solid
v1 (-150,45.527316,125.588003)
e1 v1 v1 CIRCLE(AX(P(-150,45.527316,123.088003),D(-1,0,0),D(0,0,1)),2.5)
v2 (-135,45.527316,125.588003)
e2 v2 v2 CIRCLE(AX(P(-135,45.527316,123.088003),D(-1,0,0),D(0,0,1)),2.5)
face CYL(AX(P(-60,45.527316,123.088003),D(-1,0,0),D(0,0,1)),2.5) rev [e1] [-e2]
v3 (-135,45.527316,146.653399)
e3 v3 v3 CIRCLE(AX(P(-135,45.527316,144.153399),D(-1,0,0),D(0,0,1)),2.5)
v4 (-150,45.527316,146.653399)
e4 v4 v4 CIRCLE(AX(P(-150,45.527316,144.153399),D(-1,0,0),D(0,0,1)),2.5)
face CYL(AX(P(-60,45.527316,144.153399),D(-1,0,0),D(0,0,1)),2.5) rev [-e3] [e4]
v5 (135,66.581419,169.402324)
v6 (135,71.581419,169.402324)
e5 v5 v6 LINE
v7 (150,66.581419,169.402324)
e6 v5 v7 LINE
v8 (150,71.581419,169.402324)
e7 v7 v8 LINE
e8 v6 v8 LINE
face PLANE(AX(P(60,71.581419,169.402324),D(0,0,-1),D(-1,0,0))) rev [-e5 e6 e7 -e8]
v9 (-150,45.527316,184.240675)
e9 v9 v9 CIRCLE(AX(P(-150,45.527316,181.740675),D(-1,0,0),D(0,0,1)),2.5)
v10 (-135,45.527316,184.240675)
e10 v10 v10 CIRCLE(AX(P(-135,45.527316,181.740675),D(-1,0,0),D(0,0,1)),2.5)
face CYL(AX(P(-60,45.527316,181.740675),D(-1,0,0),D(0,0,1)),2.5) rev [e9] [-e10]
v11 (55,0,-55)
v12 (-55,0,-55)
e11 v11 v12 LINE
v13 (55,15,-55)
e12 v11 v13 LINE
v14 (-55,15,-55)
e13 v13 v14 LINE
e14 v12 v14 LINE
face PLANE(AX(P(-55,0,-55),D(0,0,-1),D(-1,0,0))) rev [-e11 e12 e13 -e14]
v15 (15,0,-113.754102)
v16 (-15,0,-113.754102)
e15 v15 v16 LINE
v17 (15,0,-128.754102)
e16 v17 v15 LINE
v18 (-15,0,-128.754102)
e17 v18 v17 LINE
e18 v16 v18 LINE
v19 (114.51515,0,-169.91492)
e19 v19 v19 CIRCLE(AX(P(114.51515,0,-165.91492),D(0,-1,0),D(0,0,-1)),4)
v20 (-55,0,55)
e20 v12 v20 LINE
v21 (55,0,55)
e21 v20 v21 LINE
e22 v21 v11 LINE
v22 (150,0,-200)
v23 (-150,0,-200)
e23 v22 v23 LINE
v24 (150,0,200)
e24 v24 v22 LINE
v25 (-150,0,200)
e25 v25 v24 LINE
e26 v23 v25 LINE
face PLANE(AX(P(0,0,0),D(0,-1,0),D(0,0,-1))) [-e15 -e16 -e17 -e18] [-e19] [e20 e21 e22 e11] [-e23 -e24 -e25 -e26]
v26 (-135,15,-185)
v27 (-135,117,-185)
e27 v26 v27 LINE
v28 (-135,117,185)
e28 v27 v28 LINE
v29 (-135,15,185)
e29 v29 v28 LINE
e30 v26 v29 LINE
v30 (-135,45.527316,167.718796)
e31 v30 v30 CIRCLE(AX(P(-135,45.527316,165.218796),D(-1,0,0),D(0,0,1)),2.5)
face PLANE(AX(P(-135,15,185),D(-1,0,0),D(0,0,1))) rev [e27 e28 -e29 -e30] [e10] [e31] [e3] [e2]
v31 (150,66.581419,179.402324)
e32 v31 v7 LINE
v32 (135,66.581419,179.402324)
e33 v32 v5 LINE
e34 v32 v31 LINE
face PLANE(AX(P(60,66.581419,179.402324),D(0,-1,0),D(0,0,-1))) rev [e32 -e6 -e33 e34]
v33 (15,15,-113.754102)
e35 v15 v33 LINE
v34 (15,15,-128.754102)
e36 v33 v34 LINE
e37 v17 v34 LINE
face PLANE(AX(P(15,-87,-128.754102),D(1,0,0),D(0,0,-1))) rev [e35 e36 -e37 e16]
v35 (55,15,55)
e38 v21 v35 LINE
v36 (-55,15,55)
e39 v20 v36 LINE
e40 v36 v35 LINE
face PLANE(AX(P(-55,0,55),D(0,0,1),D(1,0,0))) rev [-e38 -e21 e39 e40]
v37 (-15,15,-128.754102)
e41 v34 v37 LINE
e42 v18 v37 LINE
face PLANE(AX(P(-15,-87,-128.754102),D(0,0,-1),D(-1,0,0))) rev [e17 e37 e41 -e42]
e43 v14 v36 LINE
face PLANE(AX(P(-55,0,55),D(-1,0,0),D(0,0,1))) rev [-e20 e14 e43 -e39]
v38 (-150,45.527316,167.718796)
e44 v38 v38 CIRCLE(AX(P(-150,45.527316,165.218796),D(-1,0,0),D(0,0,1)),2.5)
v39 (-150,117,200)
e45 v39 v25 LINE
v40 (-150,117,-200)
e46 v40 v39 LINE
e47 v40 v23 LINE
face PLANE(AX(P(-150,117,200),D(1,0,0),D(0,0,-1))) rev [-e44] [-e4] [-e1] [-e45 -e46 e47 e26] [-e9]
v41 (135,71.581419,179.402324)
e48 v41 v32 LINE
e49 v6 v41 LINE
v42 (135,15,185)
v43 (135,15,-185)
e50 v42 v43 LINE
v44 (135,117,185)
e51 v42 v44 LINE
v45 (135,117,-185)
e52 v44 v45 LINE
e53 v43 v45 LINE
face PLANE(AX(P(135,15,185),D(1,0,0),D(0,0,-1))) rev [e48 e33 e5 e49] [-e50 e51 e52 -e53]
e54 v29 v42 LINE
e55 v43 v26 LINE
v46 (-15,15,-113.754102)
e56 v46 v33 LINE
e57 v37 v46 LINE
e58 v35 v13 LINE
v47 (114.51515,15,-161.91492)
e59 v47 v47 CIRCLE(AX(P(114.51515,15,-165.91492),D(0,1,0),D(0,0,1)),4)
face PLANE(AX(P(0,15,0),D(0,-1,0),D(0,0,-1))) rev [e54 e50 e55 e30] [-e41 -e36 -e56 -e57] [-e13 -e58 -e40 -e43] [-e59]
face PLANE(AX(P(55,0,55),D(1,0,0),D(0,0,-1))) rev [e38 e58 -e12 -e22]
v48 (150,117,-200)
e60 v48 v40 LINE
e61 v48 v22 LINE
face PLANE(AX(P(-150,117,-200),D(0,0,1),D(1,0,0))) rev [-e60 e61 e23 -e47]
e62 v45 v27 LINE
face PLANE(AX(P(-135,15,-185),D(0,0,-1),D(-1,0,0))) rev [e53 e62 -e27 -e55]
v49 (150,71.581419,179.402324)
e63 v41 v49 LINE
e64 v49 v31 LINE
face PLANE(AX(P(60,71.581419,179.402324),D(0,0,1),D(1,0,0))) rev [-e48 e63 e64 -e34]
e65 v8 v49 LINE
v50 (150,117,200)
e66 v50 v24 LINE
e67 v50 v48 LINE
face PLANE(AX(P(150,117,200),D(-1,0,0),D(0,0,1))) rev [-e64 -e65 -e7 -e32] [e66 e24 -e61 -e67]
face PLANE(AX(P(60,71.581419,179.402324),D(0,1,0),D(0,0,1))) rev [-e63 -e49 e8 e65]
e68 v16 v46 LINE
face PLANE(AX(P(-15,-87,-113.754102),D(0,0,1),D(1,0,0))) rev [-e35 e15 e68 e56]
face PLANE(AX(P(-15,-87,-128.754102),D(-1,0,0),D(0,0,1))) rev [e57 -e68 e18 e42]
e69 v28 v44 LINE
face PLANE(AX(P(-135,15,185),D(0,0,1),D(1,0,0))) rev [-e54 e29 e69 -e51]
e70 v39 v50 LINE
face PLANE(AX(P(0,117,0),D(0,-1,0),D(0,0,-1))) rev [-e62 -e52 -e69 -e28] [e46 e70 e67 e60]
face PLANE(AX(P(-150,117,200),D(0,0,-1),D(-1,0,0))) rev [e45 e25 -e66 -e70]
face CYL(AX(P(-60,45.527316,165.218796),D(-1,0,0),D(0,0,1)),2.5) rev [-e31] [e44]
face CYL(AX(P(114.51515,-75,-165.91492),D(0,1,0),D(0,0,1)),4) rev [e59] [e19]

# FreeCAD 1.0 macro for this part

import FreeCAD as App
import Part
import Sketcher
from FreeCAD import Vector
Q = App.Units.Quantity

doc = App.newDocument("Part")
body = doc.addObject("PartDesign::Body", "Body")

# Sketch on XZ plane
sketch1 = body.newObject("Sketcher::SketchObject", "Sketch")
sketch1.AttachmentSupport = (doc.getObject("XZ_Plane"), [""])
sketch1.MapMode = "FlatFace"
sketch1.addGeometry([
    Part.LineSegment(Vector(-150, -200, 0), Vector(-150, 200, 0)),
    Part.LineSegment(Vector(-150, 200, 0), Vector(150, 200, 0)),
    Part.LineSegment(Vector(150, 200, 0), Vector(150, -200, 0)),
    Part.LineSegment(Vector(150, -200, 0), Vector(-150, -200, 0)),
], False)
sketch1.addConstraint([
    Sketcher.Constraint("Coincident", 0, 2, 1, 1),
    Sketcher.Constraint("Coincident", 1, 2, 2, 1),
    Sketcher.Constraint("Coincident", 2, 2, 3, 1),
    Sketcher.Constraint("Coincident", 3, 2, 0, 1),
    Sketcher.Constraint("Vertical", 0),
    Sketcher.Constraint("Horizontal", 1),
    Sketcher.Constraint("Vertical", 2),
    Sketcher.Constraint("Horizontal", 3),
    Sketcher.Constraint("Symmetric", 0, 2, 2, 2, -1, 1),
    Sketcher.Constraint("DistanceX", 1, 1, 1, 2, Q("300 mm")),
    Sketcher.Constraint("DistanceY", 0, 1, 0, 2, Q("400 mm")),
])
pad1 = body.newObject("PartDesign::Pad", "Pad")
pad1.Profile = sketch1
pad1.Length = 117
pad1.Reversed = True

# Sketch on XZ plane
sketch2 = body.newObject("Sketcher::SketchObject", "Sketch001")
sketch2.AttachmentSupport = (doc.getObject("XZ_Plane"), [""])
sketch2.MapMode = "FlatFace"
sketch2.AttachmentOffset = App.Placement(Vector(0, 0, -117), App.Rotation())
sketch2.addGeometry([
    Part.LineSegment(Vector(-55, -55, 0), Vector(-55, 55, 0)),
    Part.LineSegment(Vector(-55, 55, 0), Vector(55, 55, 0)),
    Part.LineSegment(Vector(55, 55, 0), Vector(55, -55, 0)),
    Part.LineSegment(Vector(55, -55, 0), Vector(-55, -55, 0)),
], False)
sketch2.addConstraint([
    Sketcher.Constraint("Coincident", 0, 2, 1, 1),
    Sketcher.Constraint("Coincident", 1, 2, 2, 1),
    Sketcher.Constraint("Coincident", 2, 2, 3, 1),
    Sketcher.Constraint("Coincident", 3, 2, 0, 1),
    Sketcher.Constraint("Vertical", 0),
    Sketcher.Constraint("Horizontal", 1),
    Sketcher.Constraint("Vertical", 2),
    Sketcher.Constraint("Horizontal", 3),
    Sketcher.Constraint("Symmetric", 0, 2, 2, 2, -1, 1),
    Sketcher.Constraint("Equal", 3, 0),
    Sketcher.Constraint("DistanceX", 1, 1, 1, 2, Q("110 mm")),
])
pocket1 = body.newObject("PartDesign::Pocket", "Pocket")
pocket1.Profile = sketch2
pocket1.Length = 117
pocket1.Reversed = True

# Sketch on XZ plane
sketch3 = body.newObject("Sketcher::SketchObject", "Sketch002")
sketch3.AttachmentSupport = (doc.getObject("XZ_Plane"), [""])
sketch3.MapMode = "FlatFace"
sketch3.AttachmentOffset = App.Placement(Vector(0, 0, -117), App.Rotation())
sketch3.addGeometry([
    Part.LineSegment(Vector(-135, -185, 0), Vector(-135, 185, 0)),
    Part.LineSegment(Vector(-135, 185, 0), Vector(135, 185, 0)),
    Part.LineSegment(Vector(135, 185, 0), Vector(135, -185, 0)),
    Part.LineSegment(Vector(135, -185, 0), Vector(-135, -185, 0)),
], False)
sketch3.addConstraint([
    Sketcher.Constraint("Coincident", 0, 2, 1, 1),
    Sketcher.Constraint("Coincident", 1, 2, 2, 1),
    Sketcher.Constraint("Coincident", 2, 2, 3, 1),
    Sketcher.Constraint("Coincident", 3, 2, 0, 1),
    Sketcher.Constraint("Vertical", 0),
    Sketcher.Constraint("Horizontal", 1),
    Sketcher.Constraint("Vertical", 2),
    Sketcher.Constraint("Horizontal", 3),
    Sketcher.Constraint("Symmetric", 0, 2, 2, 2, -1, 1),
    Sketcher.Constraint("DistanceX", 1, 1, 1, 2, Q("270 mm")),
    Sketcher.Constraint("DistanceY", 0, 1, 0, 2, Q("370 mm")),
])
pocket2 = body.newObject("PartDesign::Pocket", "Pocket001")
pocket2.Profile = sketch3
pocket2.Length = 102
pocket2.Reversed = True

# Sketch on XZ plane
sketch4 = body.newObject("Sketcher::SketchObject", "Sketch003")
sketch4.AttachmentSupport = (doc.getObject("XZ_Plane"), [""])
sketch4.MapMode = "FlatFace"
sketch4.AttachmentOffset = App.Placement(Vector(0, 0, -15), App.Rotation())
sketch4.addGeometry([
    Part.LineSegment(Vector(-15, -128.754102, 0), Vector(-15, -113.754102, 0)),
    Part.LineSegment(Vector(-15, -113.754102, 0), Vector(15, -113.754102, 0)),
    Part.LineSegment(Vector(15, -113.754102, 0), Vector(15, -128.754102, 0)),
    Part.LineSegment(Vector(15, -128.754102, 0), Vector(-15, -128.754102, 0)),
], False)
sketch4.addConstraint([
    Sketcher.Constraint("Coincident", 0, 2, 1, 1),
    Sketcher.Constraint("Coincident", 1, 2, 2, 1),
    Sketcher.Constraint("Coincident", 2, 2, 3, 1),
    Sketcher.Constraint("Coincident", 3, 2, 0, 1),
    Sketcher.Constraint("Vertical", 0),
    Sketcher.Constraint("Horizontal", 1),
    Sketcher.Constraint("Vertical", 2),
    Sketcher.Constraint("Horizontal", 3),
    Sketcher.Constraint("DistanceX", 1, 1, 1, 2, Q("30 mm")),
    Sketcher.Constraint("DistanceY", 0, 1, 0, 2, Q("15 mm")),
    Sketcher.Constraint("DistanceX", 0, 2, -1, 1, Q("15 mm")),
    Sketcher.Constraint("DistanceY", 0, 2, -1, 1, Q("113.754102 mm")),
])
pocket3 = body.newObject("PartDesign::Pocket", "Pocket002")
pocket3.Profile = sketch4
pocket3.Length = 102
pocket3.Reversed = True

# Sketch on YZ plane
sketch5 = body.newObject("Sketcher::SketchObject", "Sketch004")
sketch5.AttachmentSupport = (doc.getObject("YZ_Plane"), [""])
sketch5.MapMode = "FlatFace"
sketch5.AttachmentOffset = App.Placement(Vector(0, 0, 150), App.Rotation())
sketch5.addGeometry([
    Part.LineSegment(Vector(71.581419, 179.402324, 0), Vector(66.581419, 179.402324, 0)),
    Part.LineSegment(Vector(66.581419, 179.402324, 0), Vector(66.581419, 169.402324, 0)),
    Part.LineSegment(Vector(66.581419, 169.402324, 0), Vector(71.581419, 169.402324, 0)),
    Part.LineSegment(Vector(71.581419, 169.402324, 0), Vector(71.581419, 179.402324, 0)),
], False)
sketch5.addConstraint([
    Sketcher.Constraint("Coincident", 0, 2, 1, 1),
    Sketcher.Constraint("Coincident", 1, 2, 2, 1),
    Sketcher.Constraint("Coincident", 2, 2, 3, 1),
    Sketcher.Constraint("Coincident", 3, 2, 0, 1),
    Sketcher.Constraint("Horizontal", 0),
    Sketcher.Constraint("Vertical", 1),
    Sketcher.Constraint("Horizontal", 2),
    Sketcher.Constraint("Vertical", 3),
    Sketcher.Constraint("DistanceX", 0, 2, 0, 1, Q("5 mm")),
    Sketcher.Constraint("DistanceY", 1, 2, 1, 1, Q("10 mm")),
    Sketcher.Constraint("DistanceX", -1, 1, 0, 2, Q("66.581419 mm")),
    Sketcher.Constraint("DistanceY", -1, 1, 0, 2, Q("179.402324 mm")),
])
pocket4 = body.newObject("PartDesign::Pocket", "Pocket003")
pocket4.Profile = sketch5
pocket4.Length = 90

# Sketch on YZ plane
sketch6 = body.newObject("Sketcher::SketchObject", "Sketch005")
sketch6.AttachmentSupport = (doc.getObject("YZ_Plane"), [""])
sketch6.MapMode = "FlatFace"
sketch6.AttachmentOffset = App.Placement(Vector(0, 0, -150), App.Rotation())
sketch6.addGeometry([
    Part.Circle(Vector(45.527316, 181.740675, 0), Vector(0, 0, 1), 2.5),
    Part.Circle(Vector(45.527316, 165.218796, 0), Vector(0, 0, 1), 2.5),
    Part.Circle(Vector(45.527316, 144.153399, 0), Vector(0, 0, 1), 2.5),
    Part.Circle(Vector(45.527316, 123.088003, 0), Vector(0, 0, 1), 2.5),
], False)
sketch6.addConstraint([
    Sketcher.Constraint("Equal", 0, 1),
    Sketcher.Constraint("Equal", 1, 2),
    Sketcher.Constraint("Equal", 2, 3),
    Sketcher.Constraint("Vertical", 0, 3, 1, 3),
    Sketcher.Constraint("Vertical", 1, 3, 2, 3),
    Sketcher.Constraint("Vertical", 2, 3, 3, 3),
    Sketcher.Constraint("Diameter", 0, Q("5 mm")),
    Sketcher.Constraint("DistanceY", -1, 1, 2, 3, Q("144.153399 mm")),
    Sketcher.Constraint("DistanceY", 1, 3, 0, 3, Q("16.52188 mm")),
    Sketcher.Constraint("DistanceX", -1, 1, 0, 3, Q("45.527316 mm")),
    Sketcher.Constraint("DistanceY", -1, 1, 0, 3, Q("181.740675 mm")),
    Sketcher.Constraint("DistanceY", -1, 1, 3, 3, Q("123.088003 mm")),
])
pocket5 = body.newObject("PartDesign::Pocket", "Pocket004")
pocket5.Profile = sketch6
pocket5.Length = 90
pocket5.Reversed = True

# Sketch on XZ plane
sketch7 = body.newObject("Sketcher::SketchObject", "Sketch006")
sketch7.AttachmentSupport = (doc.getObject("XZ_Plane"), [""])
sketch7.MapMode = "FlatFace"
sketch7.AttachmentOffset = App.Placement(Vector(0, 0, -15), App.Rotation())
sketch7.addGeometry(Part.Circle(Vector(114.51515, -165.91492, 0), Vector(0, 0, 1), 4), False)
sketch7.addConstraint([
    Sketcher.Constraint("Diameter", 0, Q("8 mm")),
    Sketcher.Constraint("DistanceX", -1, 1, 0, 3, Q("114.51515 mm")),
    Sketcher.Constraint("DistanceY", 0, 3, -1, 1, Q("165.91492 mm")),
])
pocket6 = body.newObject("PartDesign::Pocket", "Pocket005")
pocket6.Profile = sketch7
pocket6.Length = 90
pocket6.Reversed = True

doc.recompute()
